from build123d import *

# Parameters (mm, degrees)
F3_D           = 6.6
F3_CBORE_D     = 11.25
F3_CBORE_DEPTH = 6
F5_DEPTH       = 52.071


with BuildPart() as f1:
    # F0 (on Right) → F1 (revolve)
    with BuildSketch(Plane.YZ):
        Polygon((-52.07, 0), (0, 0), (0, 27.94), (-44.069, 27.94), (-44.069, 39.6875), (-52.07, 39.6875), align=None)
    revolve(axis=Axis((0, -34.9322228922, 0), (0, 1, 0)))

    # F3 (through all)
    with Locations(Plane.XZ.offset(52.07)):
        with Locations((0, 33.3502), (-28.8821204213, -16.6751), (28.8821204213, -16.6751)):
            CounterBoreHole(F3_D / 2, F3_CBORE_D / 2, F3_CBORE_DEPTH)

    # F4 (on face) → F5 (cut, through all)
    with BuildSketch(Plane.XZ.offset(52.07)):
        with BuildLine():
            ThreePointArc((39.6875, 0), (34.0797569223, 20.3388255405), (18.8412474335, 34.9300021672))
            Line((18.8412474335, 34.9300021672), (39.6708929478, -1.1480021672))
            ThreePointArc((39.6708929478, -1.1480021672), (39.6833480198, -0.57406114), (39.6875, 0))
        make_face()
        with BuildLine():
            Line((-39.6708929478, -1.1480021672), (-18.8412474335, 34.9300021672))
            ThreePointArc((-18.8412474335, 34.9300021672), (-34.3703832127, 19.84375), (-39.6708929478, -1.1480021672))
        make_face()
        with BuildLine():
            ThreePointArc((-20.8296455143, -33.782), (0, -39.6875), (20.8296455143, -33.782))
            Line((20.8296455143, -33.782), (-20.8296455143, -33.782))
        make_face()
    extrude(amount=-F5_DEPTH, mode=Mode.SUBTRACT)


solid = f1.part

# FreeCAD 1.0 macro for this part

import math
import FreeCAD as App
import Part
import Sketcher
Q = App.Units.Quantity

doc = App.newDocument("Part")
params = doc.addObject("Spreadsheet::Sheet", "Params")
for row, (alias, value) in enumerate([
    ("sketch1_height", "1.1 in"),
    ("sketch1_width", "2.05 in"),
    ("sketch1_width2", "1.735 in"),
    ("sketch1_height2", "1.5625 in"),
    ("revolution_angle", "360 deg"),
    ("hole_diameter", "6.6 mm"),
    ("hole_cbore_diameter", "11.25 mm"),
    ("hole_cbore_depth", "6 mm"),
    ("sketch3_radius", "1.5625 in"),
], start=1):
    params.set(f"A{row}", alias)
    params.set(f"B{row}", "=" + value)
    params.setAlias(f"B{row}", alias)

body = doc.addObject("PartDesign::Body", "Body")

# Sketch on YZ plane
sketch1 = body.newObject("Sketcher::SketchObject", "Sketch")
sketch1.AttachmentSupport = (doc.getObject("YZ_Plane"), [""])
sketch1.MapMode = "FlatFace"
sketch1.addGeometry([
    Part.LineSegment(App.Vector(-52, 0, 0), App.Vector(0, 0, 0)),  # 0
    Part.LineSegment(App.Vector(0, 0, 0), App.Vector(0, 28, 0)),  # 1
    Part.LineSegment(App.Vector(0, 28, 0), App.Vector(-44, 28, 0)),  # 2
    Part.LineSegment(App.Vector(-44, 28, 0), App.Vector(-44, 40, 0)),  # 3
    Part.LineSegment(App.Vector(-44, 40, 0), App.Vector(-52, 40, 0)),  # 4
    Part.LineSegment(App.Vector(-52, 40, 0), App.Vector(-52, 0, 0)),  # 5
], False)
sketch1.addConstraint([
    Sketcher.Constraint("Coincident", 0, 2, 1, 1),
    Sketcher.Constraint("Coincident", 1, 2, 2, 1),
    Sketcher.Constraint("Coincident", 2, 2, 3, 1),
    Sketcher.Constraint("Coincident", 3, 2, 4, 1),
    Sketcher.Constraint("Coincident", 4, 2, 5, 1),
    Sketcher.Constraint("Coincident", 5, 2, 0, 1),
    Sketcher.Constraint("Horizontal", 0),
    Sketcher.Constraint("Vertical", 1),
    Sketcher.Constraint("Horizontal", 2),
    Sketcher.Constraint("Vertical", 3),
    Sketcher.Constraint("Horizontal", 4),
    Sketcher.Constraint("Vertical", 5),
    Sketcher.Constraint("Coincident", 0, 2, -1, 1),
    Sketcher.Constraint("DistanceY", 1, 1, 1, 2, Q("1.1 in")),
    Sketcher.Constraint("DistanceX", 0, 1, 0, 2, Q("2.05 in")),
    Sketcher.Constraint("DistanceX", 2, 2, 2, 1, Q("1.735 in")),
    Sketcher.Constraint("DistanceY", 5, 2, 5, 1, Q("1.5625 in")),
])
sketch1.setExpression("Constraints[13]", "Params.sketch1_height")
sketch1.setExpression("Constraints[14]", "Params.sketch1_width")
sketch1.setExpression("Constraints[15]", "Params.sketch1_width2")
sketch1.setExpression("Constraints[16]", "Params.sketch1_height2")
revolution = body.newObject("PartDesign::Revolution", "Revolution")
revolution.Profile = sketch1
revolution.ReferenceAxis = (sketch1, ["H_Axis"])
revolution.setExpression("Angle", "Params.revolution_angle")

# Sketch on XZ plane
sketch2 = body.newObject("Sketcher::SketchObject", "Sketch001")
sketch2.AttachmentSupport = (doc.getObject("XZ_Plane"), [""])
sketch2.MapMode = "FlatFace"
sketch2.AttachmentOffset = App.Placement(App.Vector(0, 0, 2.05 * 25.4), App.Rotation())
sketch2.addGeometry([
    Part.Circle(App.Vector(0, 33.4, 0), App.Vector(0, 0, 1), 3.3),
    Part.Circle(App.Vector(-28.9, -16.7, 0), App.Vector(0, 0, 1), 3.3),
    Part.Circle(App.Vector(28.9, -16.7, 0), App.Vector(0, 0, 1), 3.3),
], False)
sketch2.addConstraint([
    Sketcher.Constraint("Equal", 0, 1),
    Sketcher.Constraint("Equal", 1, 2),
    Sketcher.Constraint("Symmetric", 1, 3, 2, 3, -2),
    Sketcher.Constraint("PointOnObject", 0, 3, -2),
    Sketcher.Constraint("Diameter", 0, 6.6),
    Sketcher.Constraint("DistanceY", -1, 1, 0, 3, Q("1.313 in")),
    Sketcher.Constraint("DistanceY", 1, 3, -1, 1, Q("0.6565 in")),
    Sketcher.Constraint("DistanceX", 1, 3, -1, 1, 28.88212),
])
doc.recompute()
hole = body.newObject("PartDesign::Hole", "Hole")
hole.Profile = sketch2
hole.ThreadType = "None"
hole.setExpression("Diameter", "Params.hole_diameter")
hole.DepthType = "ThroughAll"
hole.HoleCutType = "Counterbore"
hole.setExpression("HoleCutDiameter", "Params.hole_cbore_diameter")
hole.setExpression("HoleCutDepth", "Params.hole_cbore_depth")

# Sketch on XZ plane
sketch3 = body.newObject("Sketcher::SketchObject", "Sketch002")
sketch3.AttachmentSupport = (doc.getObject("XZ_Plane"), [""])
sketch3.MapMode = "FlatFace"
sketch3.AttachmentOffset = App.Placement(App.Vector(0, 0, 2.05 * 25.4), App.Rotation())
sketch3.addGeometry([
    Part.ArcOfCircle(Part.Circle(App.Vector(0, 0, 0), App.Vector(0, 0, 1), 39.7), math.radians(0), math.radians(62)),  # 0
    Part.LineSegment(App.Vector(18.8, 34.9, 0), App.Vector(39.7, -1.1, 0)),  # 1
    Part.ArcOfCircle(Part.Circle(App.Vector(0, 0, 0), App.Vector(0, 0, 1), 39.7), math.radians(-1.66), math.radians(0)),  # 2
    Part.LineSegment(App.Vector(-39.7, -1.1, 0), App.Vector(-18.8, 34.9, 0)),  # 3
    Part.ArcOfCircle(Part.Circle(App.Vector(0, 0, 0), App.Vector(0, 0, 1), 39.7), math.radians(118), math.radians(182)),  # 4
    Part.ArcOfCircle(Part.Circle(App.Vector(0, 0, 0), App.Vector(0, 0, 1), 39.7), math.radians(-122), math.radians(-58)),  # 5
    Part.LineSegment(App.Vector(20.8, -33.8, 0), App.Vector(-20.8, -33.8, 0)),  # 6
], False)
sketch3.addConstraint([
    Sketcher.Constraint("Coincident", 0, 2, 1, 1),
    Sketcher.Constraint("Coincident", 1, 2, 2, 1),
    Sketcher.Constraint("Tangent", 2, 2, 0, 1),
    Sketcher.Constraint("Coincident", 3, 1, 4, 2),
    Sketcher.Constraint("Coincident", 4, 1, 3, 2),
    Sketcher.Constraint("Coincident", 5, 1, 6, 2),
    Sketcher.Constraint("Coincident", 6, 1, 5, 2),
    Sketcher.Constraint("Horizontal", 6),
    Sketcher.Constraint("Coincident", 0, 3, -1, 1),
    Sketcher.Constraint("Coincident", 4, 3, -1, 1),
    Sketcher.Constraint("Coincident", 5, 3, -1, 1),
    Sketcher.Constraint("Equal", 0, 2),
    Sketcher.Constraint("Equal", 2, 4),
    Sketcher.Constraint("Equal", 4, 5),
    Sketcher.Constraint("PointOnObject", 2, 2, -1),
    Sketcher.Constraint("Horizontal", 1, 2, 3, 1),
    Sketcher.Constraint("Horizontal", 0, 2, 4, 1),
    Sketcher.Constraint("Angle", 1, Q("-60 deg")),
    Sketcher.Constraint("Radius", 0, Q("1.5625 in")),
    Sketcher.Constraint("DistanceY", 5, 1, -1, 1, Q("1.33 in")),
    Sketcher.Constraint("Distance", 1, 41.659291),
])
sketch3.setExpression("Constraints[18]", "Params.sketch3_radius")
pocket1 = body.newObject("PartDesign::Pocket", "Pocket")
pocket1.Profile = sketch3
pocket1.Type = "ThroughAll"

doc.recompute()
